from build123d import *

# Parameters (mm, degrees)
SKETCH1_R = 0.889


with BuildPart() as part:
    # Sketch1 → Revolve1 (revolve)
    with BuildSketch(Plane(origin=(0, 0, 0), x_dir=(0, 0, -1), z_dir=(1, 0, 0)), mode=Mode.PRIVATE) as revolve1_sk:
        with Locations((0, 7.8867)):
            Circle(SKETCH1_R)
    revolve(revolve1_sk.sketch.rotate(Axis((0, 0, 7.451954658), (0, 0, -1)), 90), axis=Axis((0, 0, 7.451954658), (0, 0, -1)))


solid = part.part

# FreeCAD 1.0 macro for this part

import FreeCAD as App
import Part
import Sketcher
Q = App.Units.Quantity

doc = App.newDocument("Part")
body = doc.addObject("PartDesign::Body", "Body")

sketch1 = doc.addObject("Sketcher::SketchObject", "Sketch")
body.addObject(sketch1)
sketch1.AttachmentSupport = (doc.YZ_Plane, [""])
sketch1.MapMode = "FlatFace"
sketch1.addGeometry(Part.Circle(App.Vector(7.8867, 0, 0), App.Vector(0, 0, 1), 0.889), False)
sketch1.addConstraint(Sketcher.Constraint("PointOnObject", 0, 3, -1))
sketch1.addConstraint(Sketcher.Constraint("Diameter", 0, Q("0.07 in")))
sketch1.addConstraint(Sketcher.Constraint("DistanceX", -1, 1, 0, 3, Q("0.3105 in")))
revolution = doc.addObject("PartDesign::Revolution", "Revolution")
body.addObject(revolution)
revolution.Profile = sketch1
revolution.ReferenceAxis = (sketch1, ["V_Axis"])
revolution.Angle = 360

doc.recompute()
